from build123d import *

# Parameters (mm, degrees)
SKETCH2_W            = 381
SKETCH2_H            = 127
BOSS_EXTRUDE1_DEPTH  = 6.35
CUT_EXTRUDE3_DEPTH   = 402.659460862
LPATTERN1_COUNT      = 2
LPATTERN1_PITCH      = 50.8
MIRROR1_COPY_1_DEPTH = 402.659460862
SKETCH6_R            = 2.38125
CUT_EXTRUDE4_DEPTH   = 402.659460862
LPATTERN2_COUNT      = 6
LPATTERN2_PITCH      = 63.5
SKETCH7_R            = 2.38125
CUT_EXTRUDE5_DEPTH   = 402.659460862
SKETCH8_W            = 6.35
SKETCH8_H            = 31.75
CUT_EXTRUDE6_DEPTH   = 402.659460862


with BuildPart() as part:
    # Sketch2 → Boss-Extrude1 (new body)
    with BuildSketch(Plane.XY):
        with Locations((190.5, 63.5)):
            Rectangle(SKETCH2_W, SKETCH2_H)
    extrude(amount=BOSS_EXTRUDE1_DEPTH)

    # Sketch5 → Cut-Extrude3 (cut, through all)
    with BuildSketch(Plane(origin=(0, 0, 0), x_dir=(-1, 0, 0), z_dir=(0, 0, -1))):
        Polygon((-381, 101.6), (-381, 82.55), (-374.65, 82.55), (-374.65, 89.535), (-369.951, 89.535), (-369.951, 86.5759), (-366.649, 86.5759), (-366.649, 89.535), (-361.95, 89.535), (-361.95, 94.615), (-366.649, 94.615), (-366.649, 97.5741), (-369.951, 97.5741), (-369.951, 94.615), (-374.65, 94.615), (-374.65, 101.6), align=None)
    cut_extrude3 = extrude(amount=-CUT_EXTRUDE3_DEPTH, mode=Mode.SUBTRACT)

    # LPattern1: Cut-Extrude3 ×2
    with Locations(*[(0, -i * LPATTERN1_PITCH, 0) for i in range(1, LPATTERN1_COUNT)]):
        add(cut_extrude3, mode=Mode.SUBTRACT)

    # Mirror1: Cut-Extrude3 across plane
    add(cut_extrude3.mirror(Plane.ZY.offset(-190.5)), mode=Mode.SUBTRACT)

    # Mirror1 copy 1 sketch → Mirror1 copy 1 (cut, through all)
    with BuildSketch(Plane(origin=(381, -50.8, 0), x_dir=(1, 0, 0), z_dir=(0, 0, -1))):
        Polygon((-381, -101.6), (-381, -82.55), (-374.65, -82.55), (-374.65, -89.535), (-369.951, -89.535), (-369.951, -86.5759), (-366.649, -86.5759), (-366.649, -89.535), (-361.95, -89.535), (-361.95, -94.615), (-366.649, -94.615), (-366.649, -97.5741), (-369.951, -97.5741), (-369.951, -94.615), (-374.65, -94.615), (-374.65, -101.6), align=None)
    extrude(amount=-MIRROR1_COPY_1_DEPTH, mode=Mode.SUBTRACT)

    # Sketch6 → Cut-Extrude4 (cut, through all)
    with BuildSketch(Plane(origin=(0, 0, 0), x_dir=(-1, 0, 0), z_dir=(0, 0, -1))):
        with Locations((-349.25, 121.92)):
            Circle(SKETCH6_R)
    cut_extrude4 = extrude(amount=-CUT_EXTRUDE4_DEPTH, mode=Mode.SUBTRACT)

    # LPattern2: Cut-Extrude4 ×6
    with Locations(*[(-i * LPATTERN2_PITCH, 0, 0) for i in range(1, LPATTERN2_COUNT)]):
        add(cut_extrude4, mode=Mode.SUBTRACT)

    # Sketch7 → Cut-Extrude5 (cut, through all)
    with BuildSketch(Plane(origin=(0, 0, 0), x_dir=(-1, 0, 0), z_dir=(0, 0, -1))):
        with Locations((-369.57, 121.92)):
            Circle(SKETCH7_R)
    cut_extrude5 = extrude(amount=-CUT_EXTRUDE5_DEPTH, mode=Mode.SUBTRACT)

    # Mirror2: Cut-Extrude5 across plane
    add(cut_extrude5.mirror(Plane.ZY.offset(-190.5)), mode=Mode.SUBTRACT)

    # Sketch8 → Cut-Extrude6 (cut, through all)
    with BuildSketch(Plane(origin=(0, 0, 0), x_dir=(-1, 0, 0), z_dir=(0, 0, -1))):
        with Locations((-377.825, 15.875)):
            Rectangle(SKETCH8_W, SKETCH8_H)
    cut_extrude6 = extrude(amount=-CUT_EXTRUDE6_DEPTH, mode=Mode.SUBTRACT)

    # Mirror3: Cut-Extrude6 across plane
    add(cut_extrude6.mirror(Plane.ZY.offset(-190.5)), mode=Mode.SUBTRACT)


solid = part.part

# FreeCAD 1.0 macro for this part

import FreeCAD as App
import Part
import Sketcher
Q = App.Units.Quantity


def add_polygon(sketch, points):
    """Adds a closed chain of lines whose ends are joined by coincident constraints."""
    first, n = sketch.GeometryCount, len(points)
    for a, b in zip(points, points[1:] + points[:1]):
        sketch.addGeometry(Part.LineSegment(App.Vector(*a, 0), App.Vector(*b, 0)), False)
    for i in range(n):
        sketch.addConstraint(Sketcher.Constraint("Coincident", first + i, 2, first + (i + 1) % n, 1))

doc = App.newDocument("Part")
params = doc.addObject("Spreadsheet::Sheet", "Params")
for row, (alias, value) in enumerate([
    ("sketch1_width", "15 in"),
    ("sketch1_height", "5 in"),
    ("pad1_length", "0.25 in"),
    ("sketch2_height", "0.2 in"),
    ("sketch2_width", "0.25 in"),
    ("sketch2_width2", "0.13 in"),
    ("sketch2_height2", "0.75 in"),
    ("linearpattern_pitch", "2 in"),
    ("sketch3_height", "0.2 in"),
    ("sketch3_width", "0.25 in"),
    ("sketch3_width2", "0.13 in"),
    ("sketch3_height2", "0.75 in"),
    ("sketch4_diameter", "0.1875 in"),
    ("linearpattern2_pitch", "2.5 in"),
    ("sketch5_diameter", "0.1875 in"),
    ("sketch6_width", "0.25 in"),
    ("sketch6_height", "1.25 in"),
], start=1):
    params.set(f"A{row}", alias)
    params.set(f"B{row}", "=" + value)
    params.setAlias(f"B{row}", alias)

body = doc.addObject("PartDesign::Body", "Body")

# Sketch on XY plane
sketch1 = body.newObject("Sketcher::SketchObject", "Sketch")
sketch1.AttachmentSupport = (doc.getObject("XY_Plane"), [""])
sketch1.MapMode = "FlatFace"
add_polygon(sketch1, [(0, 127), (0, 0), (381, 0), (381, 127)])  # lines 0-3
sketch1.addConstraint([
    Sketcher.Constraint("Vertical", 0),
    Sketcher.Constraint("Horizontal", 1),
    Sketcher.Constraint("Vertical", 2),
    Sketcher.Constraint("Horizontal", 3),
    Sketcher.Constraint("Coincident", 0, 2, -1, 1),
    Sketcher.Constraint("DistanceX", 1, 1, 1, 2, Q("15 in")),
    Sketcher.Constraint("DistanceY", 0, 2, 0, 1, Q("5 in")),
])
sketch1.setExpression("Constraints[9]", "Params.sketch1_width")
sketch1.setExpression("Constraints[10]", "Params.sketch1_height")
pad1 = body.newObject("PartDesign::Pad", "Pad")
pad1.Profile = sketch1
pad1.setExpression("Length", "Params.pad1_length")

# Sketch on XY plane
sketch2 = body.newObject("Sketcher::SketchObject", "Sketch001")
sketch2.AttachmentSupport = (doc.getObject("XY_Plane"), [""])
sketch2.MapMode = "FlatFace"
add_polygon(sketch2, [(381, 101.6), (381, 82.5), (374.6, 82.5), (374.6, 89.5), (370, 89.5), (370, 86.6), (366.6, 86.6), (366.6, 89.5), (361.9, 89.5), (361.9, 94.6), (366.6, 94.6), (366.6, 97.6), (370, 97.6), (370, 94.6), (374.6, 94.6), (374.6, 101.6)])  # lines 0-15
sketch2.addConstraint([
    Sketcher.Constraint("Vertical", 0),
    Sketcher.Constraint("Horizontal", 1),
    Sketcher.Constraint("Vertical", 2),
    Sketcher.Constraint("Horizontal", 3),
    Sketcher.Constraint("Vertical", 4),
    Sketcher.Constraint("Horizontal", 5),
    Sketcher.Constraint("Vertical", 6),
    Sketcher.Constraint("Horizontal", 7),
    Sketcher.Constraint("Vertical", 8),
    Sketcher.Constraint("Horizontal", 9),
    Sketcher.Constraint("Vertical", 10),
    Sketcher.Constraint("Horizontal", 11),
    Sketcher.Constraint("Vertical", 12),
    Sketcher.Constraint("Horizontal", 13),
    Sketcher.Constraint("Vertical", 14),
    Sketcher.Constraint("Horizontal", 15),
    Sketcher.Constraint("Horizontal", 3, 2, 6, 2),
    Sketcher.Constraint("Horizontal", 9, 2, 12, 2),
    Sketcher.Constraint("Vertical", 6, 2, 9, 2),
    Sketcher.Constraint("Vertical", 4, 2, 11, 2),
    Sketcher.Constraint("Vertical", 2, 2, 13, 2),
    Sketcher.Constraint("Equal", 3, 7),
    Sketcher.Constraint("Equal", 6, 10),
    Sketcher.Constraint("Equal", 2, 14),
    Sketcher.Constraint("DistanceY", 8, 1, 8, 2, Q("0.2 in")),
    Sketcher.Constraint("DistanceX", -1, 1, 0, 2, Q("15 in")),
    Sketcher.Constraint("DistanceY", -1, 1, 14, 2, Q("4 in")),
    Sketcher.Constraint("DistanceX", 1, 2, 1, 1, Q("0.25 in")),
    Sketcher.Constraint("DistanceX", 5, 2, 5, 1, Q("0.13 in")),
    Sketcher.Constraint("DistanceY", 0, 2, 0, 1, Q("0.75 in")),
    Sketcher.Constraint("DistanceX", 7, 2, 2, 2, Q("0.5 in")),
    Sketcher.Constraint("DistanceY", 4, 2, 4, 1, Q("0.1165 in")),
])
sketch2.setExpression("Constraints[40]", "Params.sketch2_height")
sketch2.setExpression("Constraints[43]", "Params.sketch2_width")
sketch2.setExpression("Constraints[44]", "Params.sketch2_width2")
sketch2.setExpression("Constraints[45]", "Params.sketch2_height2")
pocket1 = body.newObject("PartDesign::Pocket", "Pocket")
pocket1.Profile = sketch2
pocket1.Type = "ThroughAll"
pocket1.Reversed = True
doc.recompute()

linearpattern = body.newObject("PartDesign::LinearPattern", "LinearPattern")
linearpattern.Originals = [pocket1]
linearpattern.Direction = (doc.getObject("Y_Axis"), [""])
linearpattern.Mode = "offset"
linearpattern.setExpression("Offset", "Params.linearpattern_pitch")
linearpattern.Occurrences = 2
linearpattern.Reversed = True
body.Tip = linearpattern
doc.recompute()

datumplane = body.newObject("PartDesign::Plane", "DatumPlane")
datumplane.AttachmentSupport = (doc.getObject("YZ_Plane"), [""])
datumplane.MapMode = "FlatFace"
datumplane.AttachmentOffset = App.Placement(App.Vector(0, 0, 7.5 * 25.4), App.Rotation())
mirrored = body.newObject("PartDesign::Mirrored", "Mirrored")
mirrored.Originals = [pocket1]
mirrored.MirrorPlane = (datumplane, [""])
body.Tip = mirrored

# Sketch on XY plane
sketch3 = body.newObject("Sketcher::SketchObject", "Sketch002")
sketch3.AttachmentSupport = (doc.getObject("XY_Plane"), [""])
sketch3.MapMode = "FlatFace"
add_polygon(sketch3, [(0, 31.8), (0, 50.8), (6.3, 50.8), (6.3, 43.8), (11, 43.8), (11, 46.8), (14.4, 46.8), (14.4, 43.8), (19.1, 43.8), (19.1, 38.7), (14.4, 38.7), (14.4, 35.8), (11, 35.8), (11, 38.7), (6.3, 38.7), (6.3, 31.8)])  # lines 0-15
sketch3.addConstraint([
    Sketcher.Constraint("Vertical", 0),
    Sketcher.Constraint("Horizontal", 1),
    Sketcher.Constraint("Vertical", 2),
    Sketcher.Constraint("Horizontal", 3),
    Sketcher.Constraint("Vertical", 4),
    Sketcher.Constraint("Horizontal", 5),
    Sketcher.Constraint("Vertical", 6),
    Sketcher.Constraint("Horizontal", 7),
    Sketcher.Constraint("Vertical", 8),
    Sketcher.Constraint("Horizontal", 9),
    Sketcher.Constraint("Vertical", 10),
    Sketcher.Constraint("Horizontal", 11),
    Sketcher.Constraint("Vertical", 12),
    Sketcher.Constraint("Horizontal", 13),
    Sketcher.Constraint("Vertical", 14),
    Sketcher.Constraint("Horizontal", 15),
    Sketcher.Constraint("PointOnObject", 0, 2, -2),
    Sketcher.Constraint("Horizontal", 3, 2, 6, 2),
    Sketcher.Constraint("Horizontal", 9, 2, 12, 2),
    Sketcher.Constraint("Vertical", 6, 2, 9, 2),
    Sketcher.Constraint("Vertical", 4, 2, 11, 2),
    Sketcher.Constraint("Vertical", 2, 2, 13, 2),
    Sketcher.Constraint("Equal", 3, 7),
    Sketcher.Constraint("Equal", 6, 10),
    Sketcher.Constraint("Equal", 2, 14),
    Sketcher.Constraint("DistanceY", 8, 2, 8, 1, Q("0.2 in")),
    Sketcher.Constraint("DistanceY", -1, 1, 0, 2, Q("2 in")),
    Sketcher.Constraint("DistanceX", 1, 1, 1, 2, Q("0.25 in")),
    Sketcher.Constraint("DistanceX", 5, 1, 5, 2, Q("0.13 in")),
    Sketcher.Constraint("DistanceY", 0, 1, 0, 2, Q("0.75 in")),
    Sketcher.Constraint("DistanceX", 2, 2, 7, 2, Q("0.5 in")),
    Sketcher.Constraint("DistanceY", 4, 1, 4, 2, Q("0.1165 in")),
])
sketch3.setExpression("Constraints[41]", "Params.sketch3_height")
sketch3.setExpression("Constraints[43]", "Params.sketch3_width")
sketch3.setExpression("Constraints[44]", "Params.sketch3_width2")
sketch3.setExpression("Constraints[45]", "Params.sketch3_height2")
pocket2 = body.newObject("PartDesign::Pocket", "Pocket001")
pocket2.Profile = sketch3
pocket2.Type = "ThroughAll"
pocket2.Reversed = True

# Sketch on XY plane
sketch4 = body.newObject("Sketcher::SketchObject", "Sketch003")
sketch4.AttachmentSupport = (doc.getObject("XY_Plane"), [""])
sketch4.MapMode = "FlatFace"
sketch4.addGeometry(Part.Circle(App.Vector(349.2, 121.9, 0), App.Vector(0, 0, 1), 2.4), False)
sketch4.addConstraint([
    Sketcher.Constraint("Diameter", 0, Q("0.1875 in")),
    Sketcher.Constraint("DistanceY", -1, 1, 0, 3, Q("4.8 in")),
    Sketcher.Constraint("DistanceX", -1, 1, 0, 3, Q("13.75 in")),
])
sketch4.setExpression("Constraints[0]", "Params.sketch4_diameter")
pocket3 = body.newObject("PartDesign::Pocket", "Pocket002")
pocket3.Profile = sketch4
pocket3.Type = "ThroughAll"
pocket3.Reversed = True
doc.recompute()

linearpattern2 = body.newObject("PartDesign::LinearPattern", "LinearPattern001")
linearpattern2.Originals = [pocket3]
linearpattern2.Direction = (doc.getObject("X_Axis"), [""])
linearpattern2.Mode = "offset"
linearpattern2.setExpression("Offset", "Params.linearpattern2_pitch")
linearpattern2.Occurrences = 6
linearpattern2.Reversed = True
body.Tip = linearpattern2

# Sketch on XY plane
sketch5 = body.newObject("Sketcher::SketchObject", "Sketch004")
sketch5.AttachmentSupport = (doc.getObject("XY_Plane"), [""])
sketch5.MapMode = "FlatFace"
sketch5.addGeometry(Part.Circle(App.Vector(369.6, 121.9, 0), App.Vector(0, 0, 1), 2.4), False)
sketch5.addConstraint([
    Sketcher.Constraint("Diameter", 0, Q("0.1875 in")),
    Sketcher.Constraint("DistanceY", -1, 1, 0, 3, Q("4.8 in")),
    Sketcher.Constraint("DistanceX", -1, 1, 0, 3, Q("14.55 in")),
])
sketch5.setExpression("Constraints[0]", "Params.sketch5_diameter")
pocket4 = body.newObject("PartDesign::Pocket", "Pocket003")
pocket4.Profile = sketch5
pocket4.Type = "ThroughAll"
pocket4.Reversed = True
doc.recompute()

datumplane2 = body.newObject("PartDesign::Plane", "DatumPlane001")
datumplane2.AttachmentSupport = (doc.getObject("YZ_Plane"), [""])
datumplane2.MapMode = "FlatFace"
datumplane2.AttachmentOffset = App.Placement(App.Vector(0, 0, 7.5 * 25.4), App.Rotation())
mirrored2 = body.newObject("PartDesign::Mirrored", "Mirrored001")
mirrored2.Originals = [pocket4]
mirrored2.MirrorPlane = (datumplane2, [""])
body.Tip = mirrored2

# Sketch on XY plane
sketch6 = body.newObject("Sketcher::SketchObject", "Sketch005")
sketch6.AttachmentSupport = (doc.getObject("XY_Plane"), [""])
sketch6.MapMode = "FlatFace"
add_polygon(sketch6, [(381, 32), (381, 0), (375, 0), (375, 32)])  # lines 0-3
sketch6.addConstraint([
    Sketcher.Constraint("Vertical", 0),
    Sketcher.Constraint("Horizontal", 1),
    Sketcher.Constraint("Vertical", 2),
    Sketcher.Constraint("Horizontal", 3),
    Sketcher.Constraint("PointOnObject", 0, 2, -1),
    Sketcher.Constraint("DistanceX", -1, 1, 0, 2, Q("15 in")),
    Sketcher.Constraint("DistanceX", 1, 2, 1, 1, Q("0.25 in")),
    Sketcher.Constraint("DistanceY", 0, 2, 0, 1, Q("1.25 in")),
])
sketch6.setExpression("Constraints[10]", "Params.sketch6_width")
sketch6.setExpression("Constraints[11]", "Params.sketch6_height")
pocket5 = body.newObject("PartDesign::Pocket", "Pocket004")
pocket5.Profile = sketch6
pocket5.Type = "ThroughAll"
pocket5.Reversed = True
doc.recompute()

datumplane3 = body.newObject("PartDesign::Plane", "DatumPlane002")
datumplane3.AttachmentSupport = (doc.getObject("YZ_Plane"), [""])
datumplane3.MapMode = "FlatFace"
datumplane3.AttachmentOffset = App.Placement(App.Vector(0, 0, 7.5 * 25.4), App.Rotation())
mirrored3 = body.newObject("PartDesign::Mirrored", "Mirrored002")
mirrored3.Originals = [pocket5]
mirrored3.MirrorPlane = (datumplane3, [""])
body.Tip = mirrored3

doc.recompute()
